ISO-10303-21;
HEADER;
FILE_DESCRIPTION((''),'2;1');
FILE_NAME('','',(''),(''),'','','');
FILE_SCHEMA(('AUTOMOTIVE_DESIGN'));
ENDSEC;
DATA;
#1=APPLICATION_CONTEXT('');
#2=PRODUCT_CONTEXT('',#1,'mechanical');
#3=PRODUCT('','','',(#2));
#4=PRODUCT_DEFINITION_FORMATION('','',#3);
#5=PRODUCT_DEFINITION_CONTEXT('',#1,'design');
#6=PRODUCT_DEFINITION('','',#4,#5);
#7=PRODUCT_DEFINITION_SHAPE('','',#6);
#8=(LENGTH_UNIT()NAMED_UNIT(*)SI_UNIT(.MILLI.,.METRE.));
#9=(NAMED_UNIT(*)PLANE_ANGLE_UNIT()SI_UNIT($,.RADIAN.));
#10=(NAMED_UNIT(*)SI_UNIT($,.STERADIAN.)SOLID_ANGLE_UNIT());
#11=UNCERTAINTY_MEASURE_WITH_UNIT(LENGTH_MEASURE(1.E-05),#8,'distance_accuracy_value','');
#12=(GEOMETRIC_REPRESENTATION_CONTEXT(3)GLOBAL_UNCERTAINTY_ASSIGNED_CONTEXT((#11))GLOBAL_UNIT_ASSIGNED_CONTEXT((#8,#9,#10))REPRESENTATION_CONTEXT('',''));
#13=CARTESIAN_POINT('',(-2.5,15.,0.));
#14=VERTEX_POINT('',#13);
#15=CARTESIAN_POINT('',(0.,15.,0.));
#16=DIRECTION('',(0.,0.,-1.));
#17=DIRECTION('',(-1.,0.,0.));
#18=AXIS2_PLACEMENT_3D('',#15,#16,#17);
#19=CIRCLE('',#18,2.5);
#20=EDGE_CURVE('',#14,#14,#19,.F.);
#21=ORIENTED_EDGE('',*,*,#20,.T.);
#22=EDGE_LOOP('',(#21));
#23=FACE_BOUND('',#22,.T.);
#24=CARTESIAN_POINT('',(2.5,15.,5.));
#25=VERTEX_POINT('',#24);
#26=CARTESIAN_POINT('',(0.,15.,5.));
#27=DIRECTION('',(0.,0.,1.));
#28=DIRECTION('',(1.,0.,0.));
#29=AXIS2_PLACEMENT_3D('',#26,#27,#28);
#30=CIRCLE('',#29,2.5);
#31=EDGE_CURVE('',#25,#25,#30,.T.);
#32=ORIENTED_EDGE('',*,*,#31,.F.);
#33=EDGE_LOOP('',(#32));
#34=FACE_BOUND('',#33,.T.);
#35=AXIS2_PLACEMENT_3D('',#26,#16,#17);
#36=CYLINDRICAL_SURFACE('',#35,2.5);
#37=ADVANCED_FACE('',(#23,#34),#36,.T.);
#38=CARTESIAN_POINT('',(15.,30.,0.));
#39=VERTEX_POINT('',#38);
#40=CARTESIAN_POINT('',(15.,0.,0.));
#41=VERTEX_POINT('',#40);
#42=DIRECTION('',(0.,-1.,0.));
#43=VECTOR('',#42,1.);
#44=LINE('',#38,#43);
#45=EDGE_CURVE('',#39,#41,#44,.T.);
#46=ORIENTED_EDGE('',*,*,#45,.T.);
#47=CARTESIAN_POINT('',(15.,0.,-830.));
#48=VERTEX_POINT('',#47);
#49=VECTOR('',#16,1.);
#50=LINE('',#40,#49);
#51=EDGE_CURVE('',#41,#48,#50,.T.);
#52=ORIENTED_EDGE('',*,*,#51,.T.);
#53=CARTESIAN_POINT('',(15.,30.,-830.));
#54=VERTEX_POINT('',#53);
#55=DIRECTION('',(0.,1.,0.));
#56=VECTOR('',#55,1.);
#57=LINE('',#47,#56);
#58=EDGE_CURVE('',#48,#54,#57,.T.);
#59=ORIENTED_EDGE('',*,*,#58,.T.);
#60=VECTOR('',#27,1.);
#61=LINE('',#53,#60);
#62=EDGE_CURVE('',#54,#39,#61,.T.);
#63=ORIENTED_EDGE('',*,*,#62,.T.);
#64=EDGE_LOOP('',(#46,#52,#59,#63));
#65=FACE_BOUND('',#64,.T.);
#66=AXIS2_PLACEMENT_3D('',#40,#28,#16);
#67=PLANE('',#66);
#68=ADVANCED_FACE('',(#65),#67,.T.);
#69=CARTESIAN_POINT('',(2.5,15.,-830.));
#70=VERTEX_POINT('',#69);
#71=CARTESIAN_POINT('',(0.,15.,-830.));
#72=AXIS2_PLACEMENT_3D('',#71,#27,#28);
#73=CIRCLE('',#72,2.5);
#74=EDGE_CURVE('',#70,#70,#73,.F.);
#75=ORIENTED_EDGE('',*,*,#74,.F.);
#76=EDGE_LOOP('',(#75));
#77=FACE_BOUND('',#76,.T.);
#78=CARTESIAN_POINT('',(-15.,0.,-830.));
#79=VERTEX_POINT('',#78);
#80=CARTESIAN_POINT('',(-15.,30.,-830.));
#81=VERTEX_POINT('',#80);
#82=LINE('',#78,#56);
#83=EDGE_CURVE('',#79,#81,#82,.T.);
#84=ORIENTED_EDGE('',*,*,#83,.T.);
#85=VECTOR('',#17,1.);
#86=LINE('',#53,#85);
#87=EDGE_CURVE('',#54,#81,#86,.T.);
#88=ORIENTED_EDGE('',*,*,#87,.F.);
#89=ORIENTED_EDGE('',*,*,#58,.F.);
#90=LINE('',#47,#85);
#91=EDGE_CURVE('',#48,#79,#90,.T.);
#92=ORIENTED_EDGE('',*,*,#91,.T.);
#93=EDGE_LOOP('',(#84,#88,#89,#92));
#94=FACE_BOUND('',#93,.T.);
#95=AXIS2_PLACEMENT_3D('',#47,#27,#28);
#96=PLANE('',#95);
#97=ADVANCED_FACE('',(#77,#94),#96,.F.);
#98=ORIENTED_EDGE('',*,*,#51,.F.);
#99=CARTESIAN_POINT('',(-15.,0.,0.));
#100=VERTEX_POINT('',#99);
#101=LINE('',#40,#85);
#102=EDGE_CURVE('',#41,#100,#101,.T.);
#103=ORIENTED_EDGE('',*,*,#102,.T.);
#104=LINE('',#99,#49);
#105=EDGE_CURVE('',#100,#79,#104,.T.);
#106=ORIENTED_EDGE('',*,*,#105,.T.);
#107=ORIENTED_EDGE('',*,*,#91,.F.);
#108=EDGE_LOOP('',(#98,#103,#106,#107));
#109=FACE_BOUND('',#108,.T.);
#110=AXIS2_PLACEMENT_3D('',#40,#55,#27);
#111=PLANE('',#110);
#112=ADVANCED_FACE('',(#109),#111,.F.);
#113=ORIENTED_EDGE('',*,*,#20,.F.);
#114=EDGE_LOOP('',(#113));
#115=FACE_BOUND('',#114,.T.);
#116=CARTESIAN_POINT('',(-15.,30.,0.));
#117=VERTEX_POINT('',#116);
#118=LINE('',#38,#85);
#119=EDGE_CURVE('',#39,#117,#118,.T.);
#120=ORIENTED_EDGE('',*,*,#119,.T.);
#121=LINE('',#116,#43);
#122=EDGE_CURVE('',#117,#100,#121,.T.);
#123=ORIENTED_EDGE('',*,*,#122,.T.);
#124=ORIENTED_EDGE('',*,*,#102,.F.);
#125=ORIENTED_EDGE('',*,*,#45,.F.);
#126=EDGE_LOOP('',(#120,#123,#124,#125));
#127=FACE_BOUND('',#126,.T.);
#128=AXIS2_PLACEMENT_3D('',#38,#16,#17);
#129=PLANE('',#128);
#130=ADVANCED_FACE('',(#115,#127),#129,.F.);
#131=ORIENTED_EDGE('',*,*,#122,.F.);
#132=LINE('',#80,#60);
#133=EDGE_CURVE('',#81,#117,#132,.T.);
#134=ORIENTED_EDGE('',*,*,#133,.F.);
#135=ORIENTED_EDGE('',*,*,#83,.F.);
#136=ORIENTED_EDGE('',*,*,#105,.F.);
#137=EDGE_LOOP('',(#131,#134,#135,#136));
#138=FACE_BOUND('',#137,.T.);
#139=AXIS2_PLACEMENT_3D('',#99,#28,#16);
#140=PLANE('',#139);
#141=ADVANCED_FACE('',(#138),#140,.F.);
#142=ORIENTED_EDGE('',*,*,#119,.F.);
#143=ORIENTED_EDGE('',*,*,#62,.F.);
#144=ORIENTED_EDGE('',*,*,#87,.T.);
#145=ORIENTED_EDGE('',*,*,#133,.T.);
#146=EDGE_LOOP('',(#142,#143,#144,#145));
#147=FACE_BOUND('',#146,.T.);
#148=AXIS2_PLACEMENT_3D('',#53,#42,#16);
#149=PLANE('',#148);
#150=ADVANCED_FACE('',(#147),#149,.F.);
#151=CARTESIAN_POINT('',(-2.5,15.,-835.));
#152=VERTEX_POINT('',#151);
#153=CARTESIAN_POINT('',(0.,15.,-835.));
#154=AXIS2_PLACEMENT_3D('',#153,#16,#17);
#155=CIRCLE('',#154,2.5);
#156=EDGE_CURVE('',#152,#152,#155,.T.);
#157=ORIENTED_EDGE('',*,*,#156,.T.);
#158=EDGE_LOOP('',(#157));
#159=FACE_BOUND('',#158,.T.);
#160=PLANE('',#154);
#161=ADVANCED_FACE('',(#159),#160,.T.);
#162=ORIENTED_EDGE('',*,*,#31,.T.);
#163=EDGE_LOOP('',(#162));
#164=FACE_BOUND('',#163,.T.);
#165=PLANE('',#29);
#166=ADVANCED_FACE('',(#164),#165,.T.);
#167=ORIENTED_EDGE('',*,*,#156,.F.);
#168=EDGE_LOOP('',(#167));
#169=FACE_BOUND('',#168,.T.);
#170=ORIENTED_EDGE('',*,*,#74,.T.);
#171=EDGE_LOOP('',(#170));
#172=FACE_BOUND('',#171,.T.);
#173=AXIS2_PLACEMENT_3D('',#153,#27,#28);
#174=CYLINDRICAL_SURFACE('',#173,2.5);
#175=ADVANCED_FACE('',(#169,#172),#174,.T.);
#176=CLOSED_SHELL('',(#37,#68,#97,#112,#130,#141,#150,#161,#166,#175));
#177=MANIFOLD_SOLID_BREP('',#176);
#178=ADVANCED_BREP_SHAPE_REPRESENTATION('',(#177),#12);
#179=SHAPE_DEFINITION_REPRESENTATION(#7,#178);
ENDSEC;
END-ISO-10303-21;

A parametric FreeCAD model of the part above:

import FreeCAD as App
import Part
import Sketcher
from FreeCAD import Vector


def add_polygon(sketch, points):
    """Adds a closed chain of lines whose ends are joined by coincident constraints."""
    first, n = sketch.GeometryCount, len(points)
    for a, b in zip(points, points[1:] + points[:1]):
        sketch.addGeometry(Part.LineSegment(App.Vector(*a, 0), App.Vector(*b, 0)), False)
    for i in range(n):
        sketch.addConstraint(Sketcher.Constraint("Coincident", first + i, 2, first + (i + 1) % n, 1))

doc = App.newDocument("Part")
body = doc.addObject("PartDesign::Body", "Body")

# Sketch on YZ plane
sketch1 = body.newObject("Sketcher::SketchObject", "Sketch")
sketch1.AttachmentSupport = (doc.getObject("YZ_Plane"), [""])
sketch1.MapMode = "FlatFace"
add_polygon(sketch1, [(30, 0), (0, 0), (0, -830), (30, -830)])  # lines 0-3
sketch1.addConstraint(Sketcher.Constraint("Horizontal", 0))
sketch1.addConstraint(Sketcher.Constraint("Vertical", 1))
sketch1.addConstraint(Sketcher.Constraint("Horizontal", 2))
sketch1.addConstraint(Sketcher.Constraint("Vertical", 3))
sketch1.addConstraint(Sketcher.Constraint("Coincident", 0, 2, -1, 1))
sketch1.addConstraint(Sketcher.Constraint("DistanceX", 0, 2, 0, 1, 30.0))
sketch1.addConstraint(Sketcher.Constraint("DistanceY", 1, 2, 1, 1, 830.0))
pad1 = body.newObject("PartDesign::Pad", "Pad")
pad1.Profile = sketch1
pad1.Length = 30
pad1.Midplane = True

# Sketch on XY plane
sketch2 = body.newObject("Sketcher::SketchObject", "Sketch001")
sketch2.AttachmentSupport = (doc.getObject("XY_Plane"), [""])
sketch2.MapMode = "FlatFace"
sketch2.AttachmentOffset = App.Placement(Vector(0, 0, -830), App.Rotation())
sketch2.addGeometry(Part.Circle(Vector(0, 15, 0), Vector(0, 0, 1), 2.5), False)
sketch2.addConstraint(Sketcher.Constraint("PointOnObject", 0, 3, -2))
sketch2.addConstraint(Sketcher.Constraint("Diameter", 0, 5.0))
sketch2.addConstraint(Sketcher.Constraint("DistanceY", -1, 1, 0, 3, 15.0))
pad2 = body.newObject("PartDesign::Pad", "Pad001")
pad2.Profile = sketch2
pad2.Length = 10
pad2.Midplane = True

# Sketch on XY plane
sketch3 = body.newObject("Sketcher::SketchObject", "Sketch002")
sketch3.AttachmentSupport = (doc.getObject("XY_Plane"), [""])
sketch3.MapMode = "FlatFace"
sketch3.addGeometry(Part.Circle(Vector(0, 15, 0), Vector(0, 0, 1), 2.5), False)
sketch3.addConstraint(Sketcher.Constraint("PointOnObject", 0, 3, -2))
sketch3.addConstraint(Sketcher.Constraint("Diameter", 0, 5.0))
sketch3.addConstraint(Sketcher.Constraint("DistanceY", -1, 1, 0, 3, 15.0))
pad3 = body.newObject("PartDesign::Pad", "Pad002")
pad3.Profile = sketch3
pad3.Length = 10
pad3.Midplane = True

doc.recompute()
